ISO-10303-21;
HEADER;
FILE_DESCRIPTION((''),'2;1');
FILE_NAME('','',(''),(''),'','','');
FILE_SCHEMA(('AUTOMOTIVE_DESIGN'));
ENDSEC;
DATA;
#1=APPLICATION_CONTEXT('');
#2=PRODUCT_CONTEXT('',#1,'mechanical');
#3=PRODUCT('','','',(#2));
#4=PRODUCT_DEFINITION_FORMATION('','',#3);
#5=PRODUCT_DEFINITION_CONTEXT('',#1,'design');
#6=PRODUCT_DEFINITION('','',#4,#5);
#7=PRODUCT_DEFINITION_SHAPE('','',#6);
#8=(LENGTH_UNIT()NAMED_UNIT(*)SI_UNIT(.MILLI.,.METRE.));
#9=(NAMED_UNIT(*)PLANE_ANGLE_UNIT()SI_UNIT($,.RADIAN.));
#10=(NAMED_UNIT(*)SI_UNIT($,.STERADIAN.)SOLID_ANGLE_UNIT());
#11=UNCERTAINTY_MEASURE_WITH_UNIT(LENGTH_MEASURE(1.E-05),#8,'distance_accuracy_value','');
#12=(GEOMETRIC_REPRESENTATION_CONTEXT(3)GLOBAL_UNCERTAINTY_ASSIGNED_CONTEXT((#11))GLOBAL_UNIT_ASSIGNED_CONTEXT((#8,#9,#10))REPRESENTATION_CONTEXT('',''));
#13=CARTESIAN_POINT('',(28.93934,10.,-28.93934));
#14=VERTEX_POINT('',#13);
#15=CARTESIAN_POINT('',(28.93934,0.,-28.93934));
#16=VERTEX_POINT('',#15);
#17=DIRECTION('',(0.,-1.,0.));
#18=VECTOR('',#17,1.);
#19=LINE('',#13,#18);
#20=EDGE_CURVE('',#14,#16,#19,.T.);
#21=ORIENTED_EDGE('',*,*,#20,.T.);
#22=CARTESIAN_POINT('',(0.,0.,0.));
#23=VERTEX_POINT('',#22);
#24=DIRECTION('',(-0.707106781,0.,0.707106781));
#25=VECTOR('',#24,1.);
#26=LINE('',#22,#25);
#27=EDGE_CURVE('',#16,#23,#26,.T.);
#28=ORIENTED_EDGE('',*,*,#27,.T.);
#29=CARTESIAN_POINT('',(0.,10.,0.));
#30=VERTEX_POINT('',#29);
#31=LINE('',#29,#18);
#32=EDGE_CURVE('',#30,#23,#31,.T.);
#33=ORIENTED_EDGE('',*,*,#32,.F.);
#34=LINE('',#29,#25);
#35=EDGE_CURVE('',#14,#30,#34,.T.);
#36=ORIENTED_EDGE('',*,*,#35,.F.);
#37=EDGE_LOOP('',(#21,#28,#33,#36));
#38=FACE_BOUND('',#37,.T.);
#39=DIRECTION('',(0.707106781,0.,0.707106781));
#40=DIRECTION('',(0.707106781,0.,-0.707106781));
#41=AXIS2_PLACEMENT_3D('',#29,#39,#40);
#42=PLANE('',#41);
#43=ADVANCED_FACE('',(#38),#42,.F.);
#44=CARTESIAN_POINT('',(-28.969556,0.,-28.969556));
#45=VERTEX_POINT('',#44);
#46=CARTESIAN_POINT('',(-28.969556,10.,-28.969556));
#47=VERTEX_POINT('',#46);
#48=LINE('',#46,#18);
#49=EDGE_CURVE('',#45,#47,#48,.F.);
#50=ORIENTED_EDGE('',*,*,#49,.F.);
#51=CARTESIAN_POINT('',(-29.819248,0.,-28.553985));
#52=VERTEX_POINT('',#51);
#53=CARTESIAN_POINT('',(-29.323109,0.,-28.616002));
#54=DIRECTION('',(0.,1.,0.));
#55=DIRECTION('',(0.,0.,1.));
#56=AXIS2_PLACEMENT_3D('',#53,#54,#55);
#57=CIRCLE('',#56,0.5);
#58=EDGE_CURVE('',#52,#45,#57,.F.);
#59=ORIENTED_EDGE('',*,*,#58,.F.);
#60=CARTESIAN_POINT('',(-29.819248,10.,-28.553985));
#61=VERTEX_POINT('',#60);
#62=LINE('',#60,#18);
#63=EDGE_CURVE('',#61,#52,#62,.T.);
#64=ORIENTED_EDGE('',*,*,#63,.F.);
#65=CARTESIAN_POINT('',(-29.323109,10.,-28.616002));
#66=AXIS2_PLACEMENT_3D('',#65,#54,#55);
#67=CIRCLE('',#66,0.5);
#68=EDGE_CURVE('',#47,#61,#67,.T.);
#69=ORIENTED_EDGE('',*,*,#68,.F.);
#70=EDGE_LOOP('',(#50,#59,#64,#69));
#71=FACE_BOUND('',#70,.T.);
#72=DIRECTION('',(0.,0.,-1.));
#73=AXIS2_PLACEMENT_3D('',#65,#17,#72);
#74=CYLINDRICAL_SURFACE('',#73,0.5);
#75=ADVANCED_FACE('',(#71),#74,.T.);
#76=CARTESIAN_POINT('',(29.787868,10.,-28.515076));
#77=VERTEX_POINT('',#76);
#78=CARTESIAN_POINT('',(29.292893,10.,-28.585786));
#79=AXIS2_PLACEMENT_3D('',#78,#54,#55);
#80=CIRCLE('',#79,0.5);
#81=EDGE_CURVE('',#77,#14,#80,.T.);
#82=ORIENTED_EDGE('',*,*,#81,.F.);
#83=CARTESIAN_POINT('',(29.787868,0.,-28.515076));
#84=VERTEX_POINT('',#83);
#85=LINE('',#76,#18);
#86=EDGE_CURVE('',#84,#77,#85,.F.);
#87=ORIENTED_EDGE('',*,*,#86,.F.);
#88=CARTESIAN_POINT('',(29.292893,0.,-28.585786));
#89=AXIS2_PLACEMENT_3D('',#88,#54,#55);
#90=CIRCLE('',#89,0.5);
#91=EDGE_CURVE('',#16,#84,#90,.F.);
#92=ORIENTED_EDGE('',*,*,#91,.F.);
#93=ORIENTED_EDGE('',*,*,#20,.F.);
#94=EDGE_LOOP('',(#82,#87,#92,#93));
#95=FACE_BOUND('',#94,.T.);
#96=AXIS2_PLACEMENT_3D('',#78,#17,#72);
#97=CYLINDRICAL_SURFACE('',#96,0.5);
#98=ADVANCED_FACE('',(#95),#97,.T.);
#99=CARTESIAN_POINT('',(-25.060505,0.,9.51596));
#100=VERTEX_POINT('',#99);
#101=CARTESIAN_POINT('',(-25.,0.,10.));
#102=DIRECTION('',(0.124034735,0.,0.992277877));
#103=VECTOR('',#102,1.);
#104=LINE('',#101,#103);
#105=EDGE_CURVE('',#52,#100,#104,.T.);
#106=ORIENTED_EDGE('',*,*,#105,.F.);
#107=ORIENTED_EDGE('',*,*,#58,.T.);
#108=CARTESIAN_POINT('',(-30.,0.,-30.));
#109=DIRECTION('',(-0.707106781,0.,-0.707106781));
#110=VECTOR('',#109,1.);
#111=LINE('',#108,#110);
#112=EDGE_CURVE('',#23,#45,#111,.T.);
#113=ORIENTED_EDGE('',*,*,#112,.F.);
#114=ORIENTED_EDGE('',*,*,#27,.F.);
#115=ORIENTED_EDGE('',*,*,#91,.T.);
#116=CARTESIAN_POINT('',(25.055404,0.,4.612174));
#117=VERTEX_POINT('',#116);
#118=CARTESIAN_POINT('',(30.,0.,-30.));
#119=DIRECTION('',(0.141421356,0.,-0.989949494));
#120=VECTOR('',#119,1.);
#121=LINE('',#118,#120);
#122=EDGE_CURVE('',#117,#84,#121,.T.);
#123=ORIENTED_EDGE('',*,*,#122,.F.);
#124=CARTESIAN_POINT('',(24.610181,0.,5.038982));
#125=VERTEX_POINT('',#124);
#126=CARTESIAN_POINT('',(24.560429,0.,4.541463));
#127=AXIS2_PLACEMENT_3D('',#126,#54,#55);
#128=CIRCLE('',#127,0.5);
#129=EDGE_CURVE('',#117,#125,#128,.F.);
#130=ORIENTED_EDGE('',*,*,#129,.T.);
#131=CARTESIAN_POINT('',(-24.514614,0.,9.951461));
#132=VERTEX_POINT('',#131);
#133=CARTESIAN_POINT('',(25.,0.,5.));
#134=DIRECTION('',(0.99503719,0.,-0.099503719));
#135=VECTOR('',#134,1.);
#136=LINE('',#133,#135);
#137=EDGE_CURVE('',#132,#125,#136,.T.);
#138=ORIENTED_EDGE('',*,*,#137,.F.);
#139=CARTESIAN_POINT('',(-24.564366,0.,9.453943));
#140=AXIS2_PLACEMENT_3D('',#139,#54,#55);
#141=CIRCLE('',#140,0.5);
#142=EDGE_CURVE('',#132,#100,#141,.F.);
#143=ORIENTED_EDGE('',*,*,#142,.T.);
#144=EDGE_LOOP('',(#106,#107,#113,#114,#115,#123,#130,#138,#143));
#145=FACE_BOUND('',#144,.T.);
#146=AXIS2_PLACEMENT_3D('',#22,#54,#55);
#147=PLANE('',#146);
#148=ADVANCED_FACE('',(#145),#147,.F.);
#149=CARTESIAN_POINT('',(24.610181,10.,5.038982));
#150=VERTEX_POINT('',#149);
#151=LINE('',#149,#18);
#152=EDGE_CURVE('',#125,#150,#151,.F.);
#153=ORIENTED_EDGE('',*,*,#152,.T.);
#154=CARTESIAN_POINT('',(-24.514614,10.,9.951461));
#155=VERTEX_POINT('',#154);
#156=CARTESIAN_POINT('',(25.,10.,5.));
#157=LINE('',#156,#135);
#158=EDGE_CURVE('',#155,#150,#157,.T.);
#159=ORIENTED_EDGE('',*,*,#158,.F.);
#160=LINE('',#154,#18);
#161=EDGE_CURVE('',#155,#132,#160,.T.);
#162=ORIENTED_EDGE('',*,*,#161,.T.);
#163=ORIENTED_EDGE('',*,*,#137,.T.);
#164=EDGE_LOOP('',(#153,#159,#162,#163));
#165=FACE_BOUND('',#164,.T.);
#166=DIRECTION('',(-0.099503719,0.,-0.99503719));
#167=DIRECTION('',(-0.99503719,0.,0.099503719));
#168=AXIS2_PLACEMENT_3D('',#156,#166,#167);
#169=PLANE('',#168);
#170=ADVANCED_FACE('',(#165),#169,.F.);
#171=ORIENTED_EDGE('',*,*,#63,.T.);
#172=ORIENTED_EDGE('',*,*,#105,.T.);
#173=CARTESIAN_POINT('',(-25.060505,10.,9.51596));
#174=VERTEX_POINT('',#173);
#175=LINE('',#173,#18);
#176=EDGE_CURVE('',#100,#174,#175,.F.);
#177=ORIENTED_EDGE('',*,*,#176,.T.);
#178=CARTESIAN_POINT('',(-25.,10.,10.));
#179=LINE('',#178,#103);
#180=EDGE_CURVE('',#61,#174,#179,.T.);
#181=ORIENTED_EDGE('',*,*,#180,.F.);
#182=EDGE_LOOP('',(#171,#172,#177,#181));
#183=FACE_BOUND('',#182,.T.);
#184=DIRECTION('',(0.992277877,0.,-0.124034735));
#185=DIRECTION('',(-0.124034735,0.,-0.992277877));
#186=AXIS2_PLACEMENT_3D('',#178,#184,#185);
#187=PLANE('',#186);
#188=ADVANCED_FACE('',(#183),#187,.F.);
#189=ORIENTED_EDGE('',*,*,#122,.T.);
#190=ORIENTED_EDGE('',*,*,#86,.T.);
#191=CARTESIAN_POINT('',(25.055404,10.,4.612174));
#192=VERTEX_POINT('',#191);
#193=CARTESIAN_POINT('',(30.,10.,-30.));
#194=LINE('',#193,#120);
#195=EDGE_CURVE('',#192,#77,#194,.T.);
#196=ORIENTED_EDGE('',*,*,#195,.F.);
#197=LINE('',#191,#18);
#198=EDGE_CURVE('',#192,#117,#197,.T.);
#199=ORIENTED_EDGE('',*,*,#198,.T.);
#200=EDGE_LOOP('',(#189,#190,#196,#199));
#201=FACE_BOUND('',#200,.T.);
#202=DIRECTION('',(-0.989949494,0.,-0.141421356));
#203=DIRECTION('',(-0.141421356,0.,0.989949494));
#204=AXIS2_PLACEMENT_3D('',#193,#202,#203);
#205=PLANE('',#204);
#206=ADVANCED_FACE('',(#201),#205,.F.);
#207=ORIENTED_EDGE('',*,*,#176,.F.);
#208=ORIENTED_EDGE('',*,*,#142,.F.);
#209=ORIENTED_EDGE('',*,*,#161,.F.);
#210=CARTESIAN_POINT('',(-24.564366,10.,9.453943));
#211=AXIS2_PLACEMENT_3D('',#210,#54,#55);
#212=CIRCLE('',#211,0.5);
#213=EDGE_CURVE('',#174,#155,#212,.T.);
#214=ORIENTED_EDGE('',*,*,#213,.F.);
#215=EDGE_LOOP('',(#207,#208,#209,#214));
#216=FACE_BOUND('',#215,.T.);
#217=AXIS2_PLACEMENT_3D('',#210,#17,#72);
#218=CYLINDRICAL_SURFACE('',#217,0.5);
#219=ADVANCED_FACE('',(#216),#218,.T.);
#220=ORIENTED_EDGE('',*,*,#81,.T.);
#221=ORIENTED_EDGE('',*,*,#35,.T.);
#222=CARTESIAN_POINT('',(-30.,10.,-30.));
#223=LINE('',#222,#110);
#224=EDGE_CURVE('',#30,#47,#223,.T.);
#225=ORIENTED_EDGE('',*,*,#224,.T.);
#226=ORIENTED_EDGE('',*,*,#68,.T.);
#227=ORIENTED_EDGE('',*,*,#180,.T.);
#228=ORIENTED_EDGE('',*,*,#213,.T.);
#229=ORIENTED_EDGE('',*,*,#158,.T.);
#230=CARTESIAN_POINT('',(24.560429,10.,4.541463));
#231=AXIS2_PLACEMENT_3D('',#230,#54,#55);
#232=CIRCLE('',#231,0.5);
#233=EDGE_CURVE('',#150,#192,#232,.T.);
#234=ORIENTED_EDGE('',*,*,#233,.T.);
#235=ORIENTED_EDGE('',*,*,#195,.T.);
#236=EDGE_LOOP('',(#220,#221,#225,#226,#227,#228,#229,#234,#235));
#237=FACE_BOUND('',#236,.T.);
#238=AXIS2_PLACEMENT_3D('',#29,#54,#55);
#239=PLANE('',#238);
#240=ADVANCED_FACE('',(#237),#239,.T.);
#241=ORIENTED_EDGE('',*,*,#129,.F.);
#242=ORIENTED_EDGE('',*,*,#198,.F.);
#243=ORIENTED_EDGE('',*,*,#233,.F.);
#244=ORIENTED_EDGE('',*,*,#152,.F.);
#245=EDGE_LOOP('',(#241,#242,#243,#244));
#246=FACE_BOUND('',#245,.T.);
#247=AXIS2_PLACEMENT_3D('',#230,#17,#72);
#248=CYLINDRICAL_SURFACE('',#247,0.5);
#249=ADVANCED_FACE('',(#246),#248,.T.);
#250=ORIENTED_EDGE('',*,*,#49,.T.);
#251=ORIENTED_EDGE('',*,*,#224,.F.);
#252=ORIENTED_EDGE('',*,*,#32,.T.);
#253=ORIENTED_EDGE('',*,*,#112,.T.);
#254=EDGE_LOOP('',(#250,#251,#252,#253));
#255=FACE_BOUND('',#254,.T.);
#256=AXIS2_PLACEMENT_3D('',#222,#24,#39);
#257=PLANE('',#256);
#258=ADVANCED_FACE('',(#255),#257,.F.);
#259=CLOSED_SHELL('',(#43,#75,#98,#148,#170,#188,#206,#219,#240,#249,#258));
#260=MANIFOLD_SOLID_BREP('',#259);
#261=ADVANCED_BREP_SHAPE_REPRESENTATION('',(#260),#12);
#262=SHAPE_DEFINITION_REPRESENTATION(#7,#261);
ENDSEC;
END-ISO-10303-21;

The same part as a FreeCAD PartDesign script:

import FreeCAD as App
import Part
import Sketcher


def edges_at(feature, points):
    """Names of the edges that pass closest to the given points."""
    edges = feature.Shape.Edges
    near = lambda p: min(range(len(edges)), key=lambda i: edges[i].distToShape(Part.Vertex(*p))[0])
    return sorted({f"Edge{near(p) + 1}" for p in points})

doc = App.newDocument("Part")
body = doc.addObject("PartDesign::Body", "Body")

# Sketch on XZ plane
sketch1 = body.newObject("Sketcher::SketchObject", "Sketch")
sketch1.AttachmentSupport = (doc.getObject("XZ_Plane"), [""])
sketch1.MapMode = "FlatFace"
sketch1.addGeometry(Part.LineSegment(App.Vector(30, -30, 0), App.Vector(0, 0, 0)), False)
sketch1.addGeometry(Part.LineSegment(App.Vector(0, 0, 0), App.Vector(-30, -30, 0)), False)
sketch1.addGeometry(Part.LineSegment(App.Vector(-30, -30, 0), App.Vector(-25, 10, 0)), False)
sketch1.addGeometry(Part.LineSegment(App.Vector(-25, 10, 0), App.Vector(25, 5, 0)), False)
sketch1.addGeometry(Part.LineSegment(App.Vector(25, 5, 0), App.Vector(30, -30, 0)), False)
sketch1.addConstraint(Sketcher.Constraint("Coincident", 0, 2, 1, 1))
sketch1.addConstraint(Sketcher.Constraint("Coincident", 1, 2, 2, 1))
sketch1.addConstraint(Sketcher.Constraint("Coincident", 2, 2, 3, 1))
sketch1.addConstraint(Sketcher.Constraint("Coincident", 3, 2, 4, 1))
sketch1.addConstraint(Sketcher.Constraint("Coincident", 4, 2, 0, 1))
sketch1.addConstraint(Sketcher.Constraint("Coincident", 0, 2, -1, 1))
sketch1.addConstraint(Sketcher.Constraint("Symmetric", 1, 2, 4, 2, -2))
sketch1.addConstraint(Sketcher.Constraint("Perpendicular", 0, 1))
sketch1.addConstraint(Sketcher.Constraint("DistanceX", 1, 2, -1, 1, 30.0))
sketch1.addConstraint(Sketcher.Constraint("DistanceX", 2, 2, -1, 1, 25.0))
sketch1.addConstraint(Sketcher.Constraint("DistanceY", -1, 1, 2, 2, 10.0))
sketch1.addConstraint(Sketcher.Constraint("DistanceX", -1, 1, 3, 2, 25.0))
sketch1.addConstraint(Sketcher.Constraint("DistanceY", -1, 1, 3, 2, 5.0))
pad1 = body.newObject("PartDesign::Pad", "Pad")
pad1.Profile = sketch1
pad1.Length = 10
pad1.Reversed = True
doc.recompute()

fillet = body.newObject("PartDesign::Fillet", "Fillet")
fillet.Base = (pad1, edges_at(pad1, [
    (30, 5, -30),
    (25, 5, 5),
    (-25, 5, 10),
    (-30, 5, -30),
]))
fillet.Radius = 0.5

doc.recompute()
